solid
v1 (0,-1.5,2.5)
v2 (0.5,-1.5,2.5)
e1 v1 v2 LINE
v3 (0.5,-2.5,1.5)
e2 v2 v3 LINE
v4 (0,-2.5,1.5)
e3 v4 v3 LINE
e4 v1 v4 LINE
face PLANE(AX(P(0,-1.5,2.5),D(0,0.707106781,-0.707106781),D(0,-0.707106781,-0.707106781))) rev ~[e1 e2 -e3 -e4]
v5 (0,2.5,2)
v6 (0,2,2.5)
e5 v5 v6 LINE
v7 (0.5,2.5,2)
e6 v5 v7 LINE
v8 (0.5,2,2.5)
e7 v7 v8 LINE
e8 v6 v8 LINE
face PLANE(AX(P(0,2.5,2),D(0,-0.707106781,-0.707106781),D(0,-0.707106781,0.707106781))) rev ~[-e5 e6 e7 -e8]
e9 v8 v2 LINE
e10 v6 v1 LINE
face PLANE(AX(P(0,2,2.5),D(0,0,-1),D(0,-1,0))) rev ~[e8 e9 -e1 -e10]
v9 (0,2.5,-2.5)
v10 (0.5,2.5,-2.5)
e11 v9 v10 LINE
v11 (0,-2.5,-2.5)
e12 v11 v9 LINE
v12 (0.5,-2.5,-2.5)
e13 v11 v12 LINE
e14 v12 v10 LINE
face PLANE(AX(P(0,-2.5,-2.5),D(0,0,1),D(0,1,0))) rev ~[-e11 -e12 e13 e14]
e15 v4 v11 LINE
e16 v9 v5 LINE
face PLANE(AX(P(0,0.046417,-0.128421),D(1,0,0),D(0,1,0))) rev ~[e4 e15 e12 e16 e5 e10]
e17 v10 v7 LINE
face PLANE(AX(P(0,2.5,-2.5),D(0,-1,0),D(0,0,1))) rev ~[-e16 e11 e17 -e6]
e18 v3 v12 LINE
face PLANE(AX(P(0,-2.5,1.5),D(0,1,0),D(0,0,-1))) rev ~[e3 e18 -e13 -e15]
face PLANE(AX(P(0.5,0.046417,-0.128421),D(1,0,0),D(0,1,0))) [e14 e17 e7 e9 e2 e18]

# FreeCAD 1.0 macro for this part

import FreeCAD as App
import Part
import Sketcher
from FreeCAD import Vector
Q = App.Units.Quantity

doc = App.newDocument("Part")
body = doc.addObject("PartDesign::Body", "Body")

sketch1 = doc.addObject("Sketcher::SketchObject", "Sketch")
body.addObject(sketch1)
sketch1.AttachmentSupport = (doc.YZ_Plane, [""])
sketch1.MapMode = "FlatFace"
sketch1.addGeometry([
    Part.LineSegment(Vector(-2.5, -2.5, 0), Vector(2.5, -2.5, 0)),
    Part.LineSegment(Vector(2.5, -2.5, 0), Vector(2.5, 2, 0)),
    Part.LineSegment(Vector(2.5, 2, 0), Vector(2, 2.5, 0)),
    Part.LineSegment(Vector(2, 2.5, 0), Vector(-1.5, 2.5, 0)),
    Part.LineSegment(Vector(-1.5, 2.5, 0), Vector(-2.5, 1.5, 0)),
    Part.LineSegment(Vector(-2.5, 1.5, 0), Vector(-2.5, -2.5, 0)),
], False)
sketch1.addConstraint([
    Sketcher.Constraint("Coincident", 0, 2, 1, 1),
    Sketcher.Constraint("Coincident", 1, 2, 2, 1),
    Sketcher.Constraint("Coincident", 2, 2, 3, 1),
    Sketcher.Constraint("Coincident", 3, 2, 4, 1),
    Sketcher.Constraint("Coincident", 4, 2, 5, 1),
    Sketcher.Constraint("Coincident", 5, 2, 0, 1),
    Sketcher.Constraint("Horizontal", 0),
    Sketcher.Constraint("Vertical", 1),
    Sketcher.Constraint("Horizontal", 3),
    Sketcher.Constraint("Vertical", 5),
    Sketcher.Constraint("Perpendicular", 2, 4),
    Sketcher.Constraint("DistanceX", 0, 1, 0, 2, 5.0),
    Sketcher.Constraint("DistanceY", 5, 2, 5, 1, 4.0),
    Sketcher.Constraint("Angle", 2, Q("135 deg")),
    Sketcher.Constraint("DistanceX", 3, 2, 3, 1, 3.5),
    Sketcher.Constraint("DistanceY", 1, 1, 1, 2, 4.5),
    Sketcher.Constraint("DistanceY", -1, 1, 1, 2, 2.0),
    Sketcher.Constraint("DistanceX", -1, 1, 2, 2, 2.0),
])
pad1 = doc.addObject("PartDesign::Pad", "Pad")
body.addObject(pad1)
pad1.Profile = sketch1
pad1.Length = 0.5

doc.recompute()
